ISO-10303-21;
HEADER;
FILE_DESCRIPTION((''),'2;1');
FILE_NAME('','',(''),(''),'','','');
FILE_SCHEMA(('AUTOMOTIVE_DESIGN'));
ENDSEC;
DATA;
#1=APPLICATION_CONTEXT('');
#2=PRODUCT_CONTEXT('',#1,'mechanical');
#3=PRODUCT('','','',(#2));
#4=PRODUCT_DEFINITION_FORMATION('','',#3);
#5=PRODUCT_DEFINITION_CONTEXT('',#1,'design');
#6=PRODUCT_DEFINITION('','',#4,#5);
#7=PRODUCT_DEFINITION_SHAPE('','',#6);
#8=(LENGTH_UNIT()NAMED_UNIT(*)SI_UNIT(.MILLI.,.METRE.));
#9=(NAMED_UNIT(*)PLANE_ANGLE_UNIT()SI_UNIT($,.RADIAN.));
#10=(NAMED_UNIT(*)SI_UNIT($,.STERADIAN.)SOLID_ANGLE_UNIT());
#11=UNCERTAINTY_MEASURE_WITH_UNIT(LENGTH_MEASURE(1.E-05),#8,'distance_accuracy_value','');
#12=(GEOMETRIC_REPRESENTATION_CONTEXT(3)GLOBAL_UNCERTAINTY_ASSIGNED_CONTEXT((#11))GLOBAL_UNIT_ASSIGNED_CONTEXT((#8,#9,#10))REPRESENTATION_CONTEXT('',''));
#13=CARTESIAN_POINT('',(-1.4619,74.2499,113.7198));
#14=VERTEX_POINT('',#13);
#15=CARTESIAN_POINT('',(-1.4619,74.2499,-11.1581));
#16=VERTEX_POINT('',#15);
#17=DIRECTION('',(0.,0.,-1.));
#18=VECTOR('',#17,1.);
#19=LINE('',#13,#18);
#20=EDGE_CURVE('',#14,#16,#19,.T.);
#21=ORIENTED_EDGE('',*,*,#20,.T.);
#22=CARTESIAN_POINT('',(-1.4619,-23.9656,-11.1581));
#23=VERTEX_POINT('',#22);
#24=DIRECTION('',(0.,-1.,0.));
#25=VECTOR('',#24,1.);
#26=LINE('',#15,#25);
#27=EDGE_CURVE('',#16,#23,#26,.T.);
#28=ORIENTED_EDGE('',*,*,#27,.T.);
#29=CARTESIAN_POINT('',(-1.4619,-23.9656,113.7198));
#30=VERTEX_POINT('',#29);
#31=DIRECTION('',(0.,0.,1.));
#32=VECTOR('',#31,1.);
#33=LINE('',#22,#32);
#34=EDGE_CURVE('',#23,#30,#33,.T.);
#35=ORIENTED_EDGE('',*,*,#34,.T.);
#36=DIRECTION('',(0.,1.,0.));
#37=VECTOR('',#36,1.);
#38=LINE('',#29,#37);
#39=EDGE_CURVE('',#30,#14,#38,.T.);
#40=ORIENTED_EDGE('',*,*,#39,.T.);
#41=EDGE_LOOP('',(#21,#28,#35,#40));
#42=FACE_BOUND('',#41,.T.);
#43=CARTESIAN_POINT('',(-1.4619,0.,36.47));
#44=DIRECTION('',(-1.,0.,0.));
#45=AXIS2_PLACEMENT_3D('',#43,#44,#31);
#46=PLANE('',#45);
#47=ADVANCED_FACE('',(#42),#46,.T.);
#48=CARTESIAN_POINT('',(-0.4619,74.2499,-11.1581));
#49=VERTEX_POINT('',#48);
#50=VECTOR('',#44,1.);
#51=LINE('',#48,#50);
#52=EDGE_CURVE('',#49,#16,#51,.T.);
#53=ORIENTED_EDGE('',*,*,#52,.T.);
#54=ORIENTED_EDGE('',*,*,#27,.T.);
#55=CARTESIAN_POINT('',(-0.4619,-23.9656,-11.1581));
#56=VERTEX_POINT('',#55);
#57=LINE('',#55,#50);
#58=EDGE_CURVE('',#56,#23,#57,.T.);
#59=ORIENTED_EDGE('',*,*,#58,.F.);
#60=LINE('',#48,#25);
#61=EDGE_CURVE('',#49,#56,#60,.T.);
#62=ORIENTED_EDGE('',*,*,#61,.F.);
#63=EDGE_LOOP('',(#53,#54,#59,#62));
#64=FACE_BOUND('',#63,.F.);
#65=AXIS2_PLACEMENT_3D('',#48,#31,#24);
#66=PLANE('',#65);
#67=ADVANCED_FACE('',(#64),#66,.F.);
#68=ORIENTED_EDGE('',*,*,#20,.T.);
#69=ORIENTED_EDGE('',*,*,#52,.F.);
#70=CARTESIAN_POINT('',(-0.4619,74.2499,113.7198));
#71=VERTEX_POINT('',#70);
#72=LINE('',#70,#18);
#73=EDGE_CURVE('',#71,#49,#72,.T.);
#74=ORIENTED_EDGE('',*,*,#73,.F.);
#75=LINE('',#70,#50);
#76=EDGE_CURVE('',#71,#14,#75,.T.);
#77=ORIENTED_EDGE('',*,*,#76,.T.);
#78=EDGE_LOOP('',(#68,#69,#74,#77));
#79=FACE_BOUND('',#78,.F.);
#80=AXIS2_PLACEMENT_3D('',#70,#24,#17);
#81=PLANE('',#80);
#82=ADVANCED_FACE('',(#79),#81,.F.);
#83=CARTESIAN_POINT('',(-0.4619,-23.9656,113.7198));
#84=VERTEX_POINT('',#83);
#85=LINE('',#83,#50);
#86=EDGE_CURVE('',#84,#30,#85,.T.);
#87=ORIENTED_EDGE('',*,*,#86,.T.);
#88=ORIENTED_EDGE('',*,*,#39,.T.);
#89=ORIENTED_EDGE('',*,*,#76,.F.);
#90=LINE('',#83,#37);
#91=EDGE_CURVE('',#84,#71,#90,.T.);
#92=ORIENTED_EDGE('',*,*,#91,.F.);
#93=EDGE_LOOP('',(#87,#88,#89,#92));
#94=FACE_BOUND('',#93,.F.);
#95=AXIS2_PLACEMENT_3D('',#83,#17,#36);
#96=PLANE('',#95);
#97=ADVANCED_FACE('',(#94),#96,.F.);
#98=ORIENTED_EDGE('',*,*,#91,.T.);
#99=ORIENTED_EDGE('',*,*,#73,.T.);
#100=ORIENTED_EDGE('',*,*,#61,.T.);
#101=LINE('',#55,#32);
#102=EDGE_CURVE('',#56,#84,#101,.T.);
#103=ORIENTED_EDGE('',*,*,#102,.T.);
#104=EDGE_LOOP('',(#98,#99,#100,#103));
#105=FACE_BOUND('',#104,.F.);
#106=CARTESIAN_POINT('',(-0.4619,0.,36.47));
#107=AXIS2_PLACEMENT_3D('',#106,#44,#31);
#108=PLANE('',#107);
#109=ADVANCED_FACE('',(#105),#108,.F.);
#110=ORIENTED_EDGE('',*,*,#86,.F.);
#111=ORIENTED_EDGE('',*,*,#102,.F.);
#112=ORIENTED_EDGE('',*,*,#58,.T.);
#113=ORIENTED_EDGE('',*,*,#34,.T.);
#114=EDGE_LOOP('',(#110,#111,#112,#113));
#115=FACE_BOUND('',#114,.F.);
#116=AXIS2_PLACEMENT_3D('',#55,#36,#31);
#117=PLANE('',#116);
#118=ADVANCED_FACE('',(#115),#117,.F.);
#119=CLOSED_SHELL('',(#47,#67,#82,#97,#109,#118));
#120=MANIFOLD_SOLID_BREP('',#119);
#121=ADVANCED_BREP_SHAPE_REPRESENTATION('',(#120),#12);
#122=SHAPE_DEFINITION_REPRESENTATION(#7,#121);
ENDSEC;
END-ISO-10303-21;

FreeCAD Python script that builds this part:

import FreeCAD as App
import Part
import Sketcher
from FreeCAD import Vector

doc = App.newDocument("Part")
params = doc.addObject("Spreadsheet::Sheet", "Params")
for row, (alias, value) in enumerate([
    ("pad1_length", "1 mm"),
], start=1):
    params.set(f"A{row}", alias)
    params.set(f"B{row}", "=" + value)
    params.setAlias(f"B{row}", alias)

body = doc.addObject("PartDesign::Body", "Body")

sketch1 = body.newObject("Sketcher::SketchObject", "Sketch")
sketch1.AttachmentSupport = (doc.getObject("YZ_Plane"), [""])
sketch1.MapMode = "FlatFace"
sketch1.AttachmentOffset = App.Placement(Vector(0, 0, -0.4619), App.Rotation())
sketch1.addGeometry([
    Part.LineSegment(Vector(-24, 114, 0), Vector(74, 114, 0)),
    Part.LineSegment(Vector(74, 114, 0), Vector(74, -11, 0)),
    Part.LineSegment(Vector(74, -11, 0), Vector(-24, -11, 0)),
    Part.LineSegment(Vector(-24, -11, 0), Vector(-24, 114, 0)),
], False)
sketch1.addConstraint([
    Sketcher.Constraint("Coincident", 0, 2, 1, 1),
    Sketcher.Constraint("Coincident", 1, 2, 2, 1),
    Sketcher.Constraint("Coincident", 2, 2, 3, 1),
    Sketcher.Constraint("Coincident", 3, 2, 0, 1),
    Sketcher.Constraint("Horizontal", 0),
    Sketcher.Constraint("Vertical", 1),
    Sketcher.Constraint("Horizontal", 2),
    Sketcher.Constraint("Vertical", 3),
    Sketcher.Constraint("DistanceY", 1, 2, 1, 1, 124.878),
    Sketcher.Constraint("DistanceX", -1, 1, 0, 2, 74.25),
    Sketcher.Constraint("DistanceX", 0, 1, 0, 2, 98.2155),
    Sketcher.Constraint("DistanceY", 1, 2, -1, 1, 11.158),
])
pad1 = body.newObject("PartDesign::Pad", "Pad")
pad1.Profile = sketch1
pad1.setExpression("Length", "Params.pad1_length")
pad1.Reversed = True

doc.recompute()
